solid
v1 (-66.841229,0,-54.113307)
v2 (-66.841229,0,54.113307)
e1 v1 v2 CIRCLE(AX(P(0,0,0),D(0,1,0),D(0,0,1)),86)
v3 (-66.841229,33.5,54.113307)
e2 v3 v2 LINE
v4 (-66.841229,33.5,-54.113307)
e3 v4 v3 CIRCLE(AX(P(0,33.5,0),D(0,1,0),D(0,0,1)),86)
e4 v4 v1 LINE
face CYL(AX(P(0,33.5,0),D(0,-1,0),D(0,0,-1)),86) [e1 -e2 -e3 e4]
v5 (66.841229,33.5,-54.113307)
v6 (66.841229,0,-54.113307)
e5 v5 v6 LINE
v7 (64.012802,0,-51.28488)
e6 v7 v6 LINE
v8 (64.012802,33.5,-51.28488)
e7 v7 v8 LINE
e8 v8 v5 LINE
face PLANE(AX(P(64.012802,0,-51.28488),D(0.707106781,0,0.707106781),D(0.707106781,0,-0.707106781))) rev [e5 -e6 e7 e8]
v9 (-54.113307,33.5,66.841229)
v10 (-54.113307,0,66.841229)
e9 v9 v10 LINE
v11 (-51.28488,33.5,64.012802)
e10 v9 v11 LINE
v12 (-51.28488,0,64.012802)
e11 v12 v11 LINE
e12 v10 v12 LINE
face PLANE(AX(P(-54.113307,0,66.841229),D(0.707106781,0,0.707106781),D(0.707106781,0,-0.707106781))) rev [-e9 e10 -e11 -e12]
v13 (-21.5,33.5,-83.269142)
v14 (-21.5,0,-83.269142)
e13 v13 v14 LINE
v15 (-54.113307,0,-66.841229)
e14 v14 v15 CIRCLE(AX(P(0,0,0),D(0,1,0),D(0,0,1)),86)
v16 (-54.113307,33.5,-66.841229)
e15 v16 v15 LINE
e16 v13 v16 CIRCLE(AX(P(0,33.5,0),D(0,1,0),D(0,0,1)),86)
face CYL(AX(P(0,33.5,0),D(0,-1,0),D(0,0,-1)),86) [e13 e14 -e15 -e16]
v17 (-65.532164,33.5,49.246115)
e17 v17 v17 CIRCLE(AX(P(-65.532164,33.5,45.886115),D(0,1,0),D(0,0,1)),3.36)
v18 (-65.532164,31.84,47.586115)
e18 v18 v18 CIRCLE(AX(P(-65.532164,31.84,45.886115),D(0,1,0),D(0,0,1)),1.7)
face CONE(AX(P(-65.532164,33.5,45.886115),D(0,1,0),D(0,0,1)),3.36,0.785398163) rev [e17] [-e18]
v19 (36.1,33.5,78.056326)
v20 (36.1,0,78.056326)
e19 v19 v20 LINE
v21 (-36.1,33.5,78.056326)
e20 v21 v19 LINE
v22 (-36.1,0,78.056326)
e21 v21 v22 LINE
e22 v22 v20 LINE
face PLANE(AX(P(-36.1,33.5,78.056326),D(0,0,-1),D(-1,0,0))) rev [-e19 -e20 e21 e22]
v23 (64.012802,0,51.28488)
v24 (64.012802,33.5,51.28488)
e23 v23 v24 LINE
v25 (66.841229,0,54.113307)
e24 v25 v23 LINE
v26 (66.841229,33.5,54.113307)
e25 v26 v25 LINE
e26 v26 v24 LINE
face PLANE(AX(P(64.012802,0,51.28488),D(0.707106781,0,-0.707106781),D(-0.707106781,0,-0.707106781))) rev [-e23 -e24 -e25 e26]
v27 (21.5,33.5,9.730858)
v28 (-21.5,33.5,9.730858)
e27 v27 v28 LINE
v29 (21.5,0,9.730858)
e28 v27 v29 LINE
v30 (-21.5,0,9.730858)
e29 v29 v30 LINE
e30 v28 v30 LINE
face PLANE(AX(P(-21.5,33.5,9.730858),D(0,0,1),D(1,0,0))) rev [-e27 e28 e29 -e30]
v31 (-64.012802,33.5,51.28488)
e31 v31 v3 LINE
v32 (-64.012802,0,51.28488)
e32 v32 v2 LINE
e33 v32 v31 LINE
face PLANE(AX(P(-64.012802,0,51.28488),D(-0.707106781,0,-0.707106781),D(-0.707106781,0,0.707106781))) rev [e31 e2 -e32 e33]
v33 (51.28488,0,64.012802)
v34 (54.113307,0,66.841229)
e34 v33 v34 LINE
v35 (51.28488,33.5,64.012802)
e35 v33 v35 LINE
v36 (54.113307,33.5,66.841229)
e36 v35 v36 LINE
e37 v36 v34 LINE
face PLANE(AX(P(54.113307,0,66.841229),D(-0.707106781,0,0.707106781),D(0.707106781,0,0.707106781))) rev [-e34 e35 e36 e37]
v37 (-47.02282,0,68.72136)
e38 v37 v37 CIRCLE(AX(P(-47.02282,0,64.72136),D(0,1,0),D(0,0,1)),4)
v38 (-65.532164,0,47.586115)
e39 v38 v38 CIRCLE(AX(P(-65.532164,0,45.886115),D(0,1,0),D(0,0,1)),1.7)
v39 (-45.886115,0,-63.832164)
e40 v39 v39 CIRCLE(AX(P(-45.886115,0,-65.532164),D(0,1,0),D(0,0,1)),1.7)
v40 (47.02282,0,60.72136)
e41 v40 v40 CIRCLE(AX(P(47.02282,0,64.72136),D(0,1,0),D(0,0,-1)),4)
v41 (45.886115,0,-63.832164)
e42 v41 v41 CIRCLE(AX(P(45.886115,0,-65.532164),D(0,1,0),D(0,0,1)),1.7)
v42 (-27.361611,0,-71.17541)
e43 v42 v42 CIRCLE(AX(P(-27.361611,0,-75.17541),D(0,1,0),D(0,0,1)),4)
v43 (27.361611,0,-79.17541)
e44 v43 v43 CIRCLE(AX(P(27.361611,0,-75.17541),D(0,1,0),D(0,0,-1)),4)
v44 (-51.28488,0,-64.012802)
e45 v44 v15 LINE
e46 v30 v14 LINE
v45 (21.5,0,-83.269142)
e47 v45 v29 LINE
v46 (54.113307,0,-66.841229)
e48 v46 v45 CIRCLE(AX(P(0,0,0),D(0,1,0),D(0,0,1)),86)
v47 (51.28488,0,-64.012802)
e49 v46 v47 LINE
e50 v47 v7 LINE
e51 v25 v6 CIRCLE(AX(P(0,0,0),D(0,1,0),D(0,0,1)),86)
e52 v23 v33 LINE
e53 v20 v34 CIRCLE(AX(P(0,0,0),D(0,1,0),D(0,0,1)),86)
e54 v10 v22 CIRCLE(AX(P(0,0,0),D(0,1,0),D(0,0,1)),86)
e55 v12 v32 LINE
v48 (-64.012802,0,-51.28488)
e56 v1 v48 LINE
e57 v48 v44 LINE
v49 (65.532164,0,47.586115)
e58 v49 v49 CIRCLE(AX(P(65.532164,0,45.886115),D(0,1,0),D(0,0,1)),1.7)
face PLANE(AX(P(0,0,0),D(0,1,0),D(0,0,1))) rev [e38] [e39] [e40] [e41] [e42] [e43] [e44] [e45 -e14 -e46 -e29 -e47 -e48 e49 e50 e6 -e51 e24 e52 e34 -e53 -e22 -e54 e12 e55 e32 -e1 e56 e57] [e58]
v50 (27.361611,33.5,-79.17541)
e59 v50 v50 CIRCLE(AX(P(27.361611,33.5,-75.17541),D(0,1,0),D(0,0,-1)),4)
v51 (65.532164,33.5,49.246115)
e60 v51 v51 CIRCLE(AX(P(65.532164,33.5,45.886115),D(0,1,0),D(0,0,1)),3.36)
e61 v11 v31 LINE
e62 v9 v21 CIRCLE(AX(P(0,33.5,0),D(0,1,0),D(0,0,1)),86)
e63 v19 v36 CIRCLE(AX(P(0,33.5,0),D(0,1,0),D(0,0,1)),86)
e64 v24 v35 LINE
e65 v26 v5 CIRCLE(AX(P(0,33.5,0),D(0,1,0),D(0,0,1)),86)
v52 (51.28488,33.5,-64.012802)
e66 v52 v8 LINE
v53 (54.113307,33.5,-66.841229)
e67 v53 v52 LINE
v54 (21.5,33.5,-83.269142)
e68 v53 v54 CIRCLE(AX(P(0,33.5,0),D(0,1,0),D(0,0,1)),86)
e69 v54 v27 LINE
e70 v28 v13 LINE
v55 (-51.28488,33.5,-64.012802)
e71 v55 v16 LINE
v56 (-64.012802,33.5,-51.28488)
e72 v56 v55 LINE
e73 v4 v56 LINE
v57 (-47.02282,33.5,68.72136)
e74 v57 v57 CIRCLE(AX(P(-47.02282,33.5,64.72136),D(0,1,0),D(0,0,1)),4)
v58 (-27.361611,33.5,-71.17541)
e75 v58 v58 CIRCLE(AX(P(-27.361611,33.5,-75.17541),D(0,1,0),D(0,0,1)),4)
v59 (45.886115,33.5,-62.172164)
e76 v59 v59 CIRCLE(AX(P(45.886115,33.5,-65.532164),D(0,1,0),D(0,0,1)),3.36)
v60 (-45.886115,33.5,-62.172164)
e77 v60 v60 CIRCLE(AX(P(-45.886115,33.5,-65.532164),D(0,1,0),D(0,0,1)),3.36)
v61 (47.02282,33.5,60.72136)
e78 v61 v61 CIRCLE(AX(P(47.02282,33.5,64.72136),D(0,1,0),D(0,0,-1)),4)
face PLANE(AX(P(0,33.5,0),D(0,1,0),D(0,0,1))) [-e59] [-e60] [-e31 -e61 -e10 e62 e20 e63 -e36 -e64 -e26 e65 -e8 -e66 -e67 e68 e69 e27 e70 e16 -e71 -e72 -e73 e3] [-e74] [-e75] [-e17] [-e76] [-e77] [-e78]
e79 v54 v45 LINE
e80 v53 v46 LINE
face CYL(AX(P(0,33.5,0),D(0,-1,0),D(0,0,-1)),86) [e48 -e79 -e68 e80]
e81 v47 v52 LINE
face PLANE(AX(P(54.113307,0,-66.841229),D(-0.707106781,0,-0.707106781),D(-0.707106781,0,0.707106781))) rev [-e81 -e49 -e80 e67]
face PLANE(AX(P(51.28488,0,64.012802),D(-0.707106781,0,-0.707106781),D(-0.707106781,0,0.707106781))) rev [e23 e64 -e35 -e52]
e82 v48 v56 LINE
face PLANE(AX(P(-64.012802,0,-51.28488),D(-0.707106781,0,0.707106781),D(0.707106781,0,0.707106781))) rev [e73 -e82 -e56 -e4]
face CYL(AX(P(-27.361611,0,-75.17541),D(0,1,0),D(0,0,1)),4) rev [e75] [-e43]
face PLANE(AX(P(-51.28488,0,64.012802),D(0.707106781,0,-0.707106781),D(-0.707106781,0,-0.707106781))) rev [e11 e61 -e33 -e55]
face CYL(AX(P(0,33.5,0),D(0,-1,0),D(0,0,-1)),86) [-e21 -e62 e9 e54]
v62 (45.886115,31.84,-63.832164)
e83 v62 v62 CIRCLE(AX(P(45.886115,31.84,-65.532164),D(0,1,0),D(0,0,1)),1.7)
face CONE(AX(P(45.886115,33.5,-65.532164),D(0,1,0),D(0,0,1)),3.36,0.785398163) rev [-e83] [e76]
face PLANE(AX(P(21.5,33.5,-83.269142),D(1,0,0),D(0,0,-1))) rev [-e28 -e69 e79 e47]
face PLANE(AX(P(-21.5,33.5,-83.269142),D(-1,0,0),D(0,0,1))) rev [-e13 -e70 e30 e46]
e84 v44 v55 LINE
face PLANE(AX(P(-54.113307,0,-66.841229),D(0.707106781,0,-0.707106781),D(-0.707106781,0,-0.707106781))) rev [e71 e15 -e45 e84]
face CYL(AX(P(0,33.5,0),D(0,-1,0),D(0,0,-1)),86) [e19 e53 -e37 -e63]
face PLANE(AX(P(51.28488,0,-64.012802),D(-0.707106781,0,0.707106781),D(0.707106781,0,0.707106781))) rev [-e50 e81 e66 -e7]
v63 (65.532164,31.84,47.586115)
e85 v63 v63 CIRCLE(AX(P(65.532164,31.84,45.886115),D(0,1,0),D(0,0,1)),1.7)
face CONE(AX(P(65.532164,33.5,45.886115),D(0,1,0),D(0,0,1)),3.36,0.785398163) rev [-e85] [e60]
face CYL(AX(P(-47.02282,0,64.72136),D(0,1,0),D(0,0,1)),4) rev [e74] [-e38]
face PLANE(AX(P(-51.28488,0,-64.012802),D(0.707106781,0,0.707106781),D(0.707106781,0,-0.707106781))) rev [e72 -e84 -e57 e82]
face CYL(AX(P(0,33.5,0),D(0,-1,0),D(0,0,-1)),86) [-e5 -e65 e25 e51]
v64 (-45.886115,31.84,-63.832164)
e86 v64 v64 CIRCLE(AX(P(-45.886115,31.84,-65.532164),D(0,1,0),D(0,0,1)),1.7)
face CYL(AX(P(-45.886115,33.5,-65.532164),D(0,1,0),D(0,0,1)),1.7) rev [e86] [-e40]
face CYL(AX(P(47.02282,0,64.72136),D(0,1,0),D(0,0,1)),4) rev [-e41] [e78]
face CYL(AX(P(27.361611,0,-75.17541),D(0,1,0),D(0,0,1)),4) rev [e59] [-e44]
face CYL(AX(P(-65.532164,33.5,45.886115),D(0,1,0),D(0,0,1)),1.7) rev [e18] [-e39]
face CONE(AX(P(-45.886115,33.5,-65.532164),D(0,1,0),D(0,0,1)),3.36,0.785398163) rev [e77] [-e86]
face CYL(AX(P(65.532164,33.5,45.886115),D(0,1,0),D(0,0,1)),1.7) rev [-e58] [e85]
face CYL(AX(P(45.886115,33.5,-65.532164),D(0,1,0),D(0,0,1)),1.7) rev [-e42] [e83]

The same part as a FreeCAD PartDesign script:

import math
import FreeCAD as App
import Part
import Sketcher
from FreeCAD import Vector


def add_polygon(sketch, points):
    """Adds a closed chain of lines whose ends are joined by coincident constraints."""
    first, n = sketch.GeometryCount, len(points)
    for a, b in zip(points, points[1:] + points[:1]):
        sketch.addGeometry(Part.LineSegment(App.Vector(*a, 0), App.Vector(*b, 0)), False)
    for i in range(n):
        sketch.addConstraint(Sketcher.Constraint("Coincident", first + i, 2, first + (i + 1) % n, 1))

doc = App.newDocument("Part")
body = doc.addObject("PartDesign::Body", "Body")

# Sketch on XZ plane
sketch1 = body.newObject("Sketcher::SketchObject", "Sketch")
sketch1.AttachmentSupport = (doc.getObject("XZ_Plane"), [""])
sketch1.MapMode = "FlatFace"
sketch1.addGeometry(Part.LineSegment(Vector(-21.5, 9.730858, 0), Vector(-21.5, -83.269142, 0)), False)
sketch1.addGeometry(Part.ArcOfCircle(Part.Circle(Vector(0, 0, 0), Vector(0, 0, 1), 86), math.radians(-128.992931), math.radians(-104.477512)), False)
sketch1.addGeometry(Part.LineSegment(Vector(-54.113307, -66.841229, 0), Vector(-66.841229, -54.113307, 0)), False)
sketch1.addGeometry(Part.ArcOfCircle(Part.Circle(Vector(0, 0, 0), Vector(0, 0, 1), 86), math.radians(141.007069), math.radians(218.992931)), False)
sketch1.addGeometry(Part.LineSegment(Vector(-66.841229, 54.113307, 0), Vector(-54.113307, 66.841229, 0)), False)
sketch1.addGeometry(Part.ArcOfCircle(Part.Circle(Vector(0, 0, 0), Vector(0, 0, 1), 86), math.radians(114.819906), math.radians(128.992931)), False)
sketch1.addGeometry(Part.LineSegment(Vector(-36.1, 78.056326, 0), Vector(36.1, 78.056326, 0)), False)
sketch1.addGeometry(Part.ArcOfCircle(Part.Circle(Vector(0, 0, 0), Vector(0, 0, 1), 86), math.radians(51.007069), math.radians(65.180094)), False)
sketch1.addGeometry(Part.LineSegment(Vector(54.113307, 66.841229, 0), Vector(66.841229, 54.113307, 0)), False)
sketch1.addGeometry(Part.ArcOfCircle(Part.Circle(Vector(0, 0, 0), Vector(0, 0, 1), 86), math.radians(-38.992931), math.radians(38.992931)), False)
sketch1.addGeometry(Part.LineSegment(Vector(66.841229, -54.113307, 0), Vector(54.113307, -66.841229, 0)), False)
sketch1.addGeometry(Part.ArcOfCircle(Part.Circle(Vector(0, 0, 0), Vector(0, 0, 1), 86), math.radians(-75.522488), math.radians(-51.007069)), False)
sketch1.addGeometry(Part.LineSegment(Vector(21.5, -83.269142, 0), Vector(21.5, 9.730858, 0)), False)
sketch1.addGeometry(Part.LineSegment(Vector(21.5, 9.730858, 0), Vector(-21.5, 9.730858, 0)), False)
sketch1.addConstraint(Sketcher.Constraint("Coincident", 0, 2, 1, 2))
sketch1.addConstraint(Sketcher.Constraint("Coincident", 1, 1, 2, 1))
sketch1.addConstraint(Sketcher.Constraint("Coincident", 2, 2, 3, 2))
sketch1.addConstraint(Sketcher.Constraint("Coincident", 3, 1, 4, 1))
sketch1.addConstraint(Sketcher.Constraint("Coincident", 4, 2, 5, 2))
sketch1.addConstraint(Sketcher.Constraint("Coincident", 5, 1, 6, 1))
sketch1.addConstraint(Sketcher.Constraint("Coincident", 6, 2, 7, 2))
sketch1.addConstraint(Sketcher.Constraint("Coincident", 7, 1, 8, 1))
sketch1.addConstraint(Sketcher.Constraint("Coincident", 8, 2, 9, 2))
sketch1.addConstraint(Sketcher.Constraint("Coincident", 9, 1, 10, 1))
sketch1.addConstraint(Sketcher.Constraint("Coincident", 10, 2, 11, 2))
sketch1.addConstraint(Sketcher.Constraint("Coincident", 11, 1, 12, 1))
sketch1.addConstraint(Sketcher.Constraint("Coincident", 12, 2, 13, 1))
sketch1.addConstraint(Sketcher.Constraint("Coincident", 13, 2, 0, 1))
sketch1.addConstraint(Sketcher.Constraint("Vertical", 0))
sketch1.addConstraint(Sketcher.Constraint("Horizontal", 6))
sketch1.addConstraint(Sketcher.Constraint("Vertical", 12))
sketch1.addConstraint(Sketcher.Constraint("Horizontal", 13))
sketch1.addConstraint(Sketcher.Constraint("Coincident", 1, 3, -1, 1))
sketch1.addConstraint(Sketcher.Constraint("Coincident", 3, 3, -1, 1))
sketch1.addConstraint(Sketcher.Constraint("Coincident", 5, 3, -1, 1))
sketch1.addConstraint(Sketcher.Constraint("Coincident", 7, 3, -1, 1))
sketch1.addConstraint(Sketcher.Constraint("Coincident", 9, 3, -1, 1))
sketch1.addConstraint(Sketcher.Constraint("Coincident", 11, 3, -1, 1))
sketch1.addConstraint(Sketcher.Constraint("Equal", 1, 3))
sketch1.addConstraint(Sketcher.Constraint("Equal", 3, 5))
sketch1.addConstraint(Sketcher.Constraint("Equal", 5, 7))
sketch1.addConstraint(Sketcher.Constraint("Equal", 7, 9))
sketch1.addConstraint(Sketcher.Constraint("Equal", 9, 11))
sketch1.addConstraint(Sketcher.Constraint("Perpendicular", 2, 4))
sketch1.addConstraint(Sketcher.Constraint("Perpendicular", 4, 8))
sketch1.addConstraint(Sketcher.Constraint("Perpendicular", 8, 10))
sketch1.addConstraint(Sketcher.Constraint("Horizontal", 4, 2, 7, 1))
sketch1.addConstraint(Sketcher.Constraint("Horizontal", 3, 1, 8, 2))
sketch1.addConstraint(Sketcher.Constraint("Horizontal", 2, 2, 9, 1))
sketch1.addConstraint(Sketcher.Constraint("Horizontal", 0, 2, 11, 1))
sketch1.addConstraint(Sketcher.Constraint("Vertical", 2, 2, 3, 1))
sketch1.addConstraint(Sketcher.Constraint("Radius", 1, 86.0))
sketch1.addConstraint(Sketcher.Constraint("DistanceX", 13, 2, 13, 1, 43.0))
sketch1.addConstraint(Sketcher.Constraint("DistanceY", 0, 2, 0, 1, 93.0))
sketch1.addConstraint(Sketcher.Constraint("Distance", 2, 18.0))
sketch1.addConstraint(Sketcher.Constraint("DistanceX", 6, 1, 6, 2, 72.2))
pad1 = body.newObject("PartDesign::Pad", "Pad")
pad1.Profile = sketch1
pad1.Length = 33.5
pad1.Reversed = True

# Sketch on XZ plane
sketch2 = body.newObject("Sketcher::SketchObject", "Sketch001")
sketch2.AttachmentSupport = (doc.getObject("XZ_Plane"), [""])
sketch2.MapMode = "FlatFace"
sketch2.AttachmentOffset = App.Placement(Vector(0, 0, -33.5), App.Rotation())
sketch2.addGeometry(Part.Circle(Vector(45.886115, -65.532164, 0), Vector(0, 0, 1), 1.7), False)
sketch2.addGeometry(Part.Circle(Vector(65.532164, 45.886115, 0), Vector(0, 0, 1), 1.7), False)
sketch2.addGeometry(Part.Circle(Vector(-65.532164, 45.886115, 0), Vector(0, 0, 1), 1.7), False)
sketch2.addGeometry(Part.Circle(Vector(-45.886115, -65.532164, 0), Vector(0, 0, 1), 1.7), False)
sketch2.addConstraint(Sketcher.Constraint("Equal", 0, 1))
sketch2.addConstraint(Sketcher.Constraint("Equal", 1, 2))
sketch2.addConstraint(Sketcher.Constraint("Equal", 2, 3))
sketch2.addConstraint(Sketcher.Constraint("Symmetric", 1, 3, 2, 3, -2))
sketch2.addConstraint(Sketcher.Constraint("Symmetric", 0, 3, 3, 3, -2))
sketch2.addConstraint(Sketcher.Constraint("Diameter", 0, 3.4))
sketch2.addConstraint(Sketcher.Constraint("DistanceX", 0, 3, 1, 3, 19.646049))
sketch2.addConstraint(Sketcher.Constraint("DistanceY", 0, 3, 1, 3, 111.418278))
sketch2.addConstraint(Sketcher.Constraint("DistanceX", 2, 3, 0, 3, 111.418278))
sketch2.addConstraint(Sketcher.Constraint("DistanceY", 0, 3, -1, 1, 65.532164))
doc.recompute()
hole = body.newObject("PartDesign::Hole", "Hole")
hole.Profile = sketch2
hole.ThreadType = "None"
hole.Diameter = 3.4
hole.DepthType = "ThroughAll"
hole.HoleCutType = "Countersink"
hole.HoleCutDiameter = 6.72
hole.HoleCutCountersinkAngle = 90
hole.Reversed = True

# Sketch on XZ plane
sketch3 = body.newObject("Sketcher::SketchObject", "Sketch002")
sketch3.AttachmentSupport = (doc.getObject("XZ_Plane"), [""])
sketch3.MapMode = "FlatFace"
sketch3.AttachmentOffset = App.Placement(Vector(0, 0, -33.5), App.Rotation())
sketch3.addGeometry(Part.Circle(Vector(-27.361611, -75.17541, 0), Vector(0, 0, 1), 4), False)
sketch3.addGeometry(Part.Circle(Vector(-47.02282, 64.72136, 0), Vector(0, 0, 1), 4), False)
sketch3.addGeometry(Part.Circle(Vector(47.02282, 64.72136, 0), Vector(0, 0, 1), 4), False)
sketch3.addGeometry(Part.Circle(Vector(27.361611, -75.17541, 0), Vector(0, 0, 1), 4), False)
sketch3.addConstraint(Sketcher.Constraint("Equal", 0, 1))
sketch3.addConstraint(Sketcher.Constraint("Equal", 1, 2))
sketch3.addConstraint(Sketcher.Constraint("Equal", 2, 3))
sketch3.addConstraint(Sketcher.Constraint("Symmetric", 1, 3, 2, 3, -2))
sketch3.addConstraint(Sketcher.Constraint("Symmetric", 0, 3, 3, 3, -2))
sketch3.addConstraint(Sketcher.Constraint("Diameter", 0, 8.0))
sketch3.addConstraint(Sketcher.Constraint("DistanceX", 0, 3, -1, 1, 27.361611))
sketch3.addConstraint(Sketcher.Constraint("DistanceY", 0, 3, -1, 1, 75.17541))
sketch3.addConstraint(Sketcher.Constraint("DistanceX", 1, 3, -1, 1, 47.02282))
sketch3.addConstraint(Sketcher.Constraint("DistanceY", -1, 1, 1, 3, 64.72136))
pocket1 = body.newObject("PartDesign::Pocket", "Pocket")
pocket1.Profile = sketch3
pocket1.Type = "ThroughAll"
pocket1.Reversed = True

# Sketch on XZ plane
sketch4 = body.newObject("Sketcher::SketchObject", "Sketch003")
sketch4.AttachmentSupport = (doc.getObject("XZ_Plane"), [""])
sketch4.MapMode = "FlatFace"
sketch4.AttachmentOffset = App.Placement(Vector(0, 0, -33.5), App.Rotation())
add_polygon(sketch4, [(-66.841229, 54.113307), (-54.113307, 66.841229), (-51.28488, 64.012802), (-64.012802, 51.28488)])  # lines 0-3
add_polygon(sketch4, [(64.012802, 51.28488), (51.28488, 64.012802), (54.113307, 66.841229), (66.841229, 54.113307)])  # lines 4-7
add_polygon(sketch4, [(54.113307, -66.841229), (51.28488, -64.012802), (64.012802, -51.28488), (66.841229, -54.113307)])  # lines 8-11
add_polygon(sketch4, [(-64.012802, -51.28488), (-51.28488, -64.012802), (-54.113307, -66.841229), (-66.841229, -54.113307)])  # lines 12-15
sketch4.addConstraint(Sketcher.Constraint("Symmetric", 1, 2, 8, 2, -1, 1))
sketch4.addConstraint(Sketcher.Constraint("Symmetric", 2, 2, 9, 2, -1, 1))
sketch4.addConstraint(Sketcher.Constraint("Symmetric", 3, 2, 10, 2, -1, 1))
sketch4.addConstraint(Sketcher.Constraint("Symmetric", 0, 2, 11, 2, -1, 1))
sketch4.addConstraint(Sketcher.Constraint("Symmetric", 4, 2, 12, 2, -1, 1))
sketch4.addConstraint(Sketcher.Constraint("Symmetric", 5, 2, 13, 2, -1, 1))
sketch4.addConstraint(Sketcher.Constraint("Symmetric", 6, 2, 14, 2, -1, 1))
sketch4.addConstraint(Sketcher.Constraint("Symmetric", 7, 2, 15, 2, -1, 1))
sketch4.addConstraint(Sketcher.Constraint("Symmetric", 1, 2, 4, 2, -2))
sketch4.addConstraint(Sketcher.Constraint("Symmetric", 0, 2, 5, 2, -2))
sketch4.addConstraint(Sketcher.Constraint("Symmetric", 3, 2, 6, 2, -2))
sketch4.addConstraint(Sketcher.Constraint("Symmetric", 2, 2, 7, 2, -2))
sketch4.addConstraint(Sketcher.Constraint("Perpendicular", 0, 1))
sketch4.addConstraint(Sketcher.Constraint("Perpendicular", 1, 2))
sketch4.addConstraint(Sketcher.Constraint("Perpendicular", 2, 3))
sketch4.addConstraint(Sketcher.Constraint("Parallel", 3, 4))
sketch4.addConstraint(Sketcher.Constraint("Distance", 0, 18.0))
sketch4.addConstraint(Sketcher.Constraint("Distance", 1, 4.0))
sketch4.addConstraint(Sketcher.Constraint("DistanceY", -1, 1, 0, 2, 66.841229))
sketch4.addConstraint(Sketcher.Constraint("DistanceX", 1, 2, -1, 1, 51.28488))
pocket2 = body.newObject("PartDesign::Pocket", "Pocket001")
pocket2.Profile = sketch4
pocket2.Type = "ThroughAll"
pocket2.Reversed = True

doc.recompute()
